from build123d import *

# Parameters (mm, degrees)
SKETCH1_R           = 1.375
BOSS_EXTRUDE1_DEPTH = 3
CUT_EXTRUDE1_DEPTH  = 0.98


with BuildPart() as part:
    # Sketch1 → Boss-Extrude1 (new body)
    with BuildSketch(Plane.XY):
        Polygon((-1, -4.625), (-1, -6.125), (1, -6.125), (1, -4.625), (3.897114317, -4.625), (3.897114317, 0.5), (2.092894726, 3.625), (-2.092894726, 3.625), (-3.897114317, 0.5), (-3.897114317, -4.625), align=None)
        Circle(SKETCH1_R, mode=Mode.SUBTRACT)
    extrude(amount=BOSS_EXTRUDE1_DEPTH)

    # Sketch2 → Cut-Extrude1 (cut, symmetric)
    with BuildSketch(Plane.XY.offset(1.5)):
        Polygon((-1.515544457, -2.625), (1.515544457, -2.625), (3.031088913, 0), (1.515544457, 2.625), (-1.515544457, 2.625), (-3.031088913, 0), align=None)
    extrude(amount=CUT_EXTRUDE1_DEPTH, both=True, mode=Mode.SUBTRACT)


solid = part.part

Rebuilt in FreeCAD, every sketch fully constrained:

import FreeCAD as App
import Part
import Sketcher
Q = App.Units.Quantity

doc = App.newDocument("Part")
body = doc.addObject("PartDesign::Body", "Body")

sketch1 = body.newObject("Sketcher::SketchObject", "Sketch")
sketch1.AttachmentSupport = (doc.getObject("XY_Plane"), [""])
sketch1.MapMode = "FlatFace"
sketch1.addGeometry([
    Part.LineSegment(App.Vector(-1, -4.6, 0), App.Vector(-1, -6.1, 0)),
    Part.LineSegment(App.Vector(-1, -6.1, 0), App.Vector(1, -6.1, 0)),
    Part.LineSegment(App.Vector(1, -6.1, 0), App.Vector(1, -4.6, 0)),
    Part.LineSegment(App.Vector(1, -4.6, 0), App.Vector(3.9, -4.6, 0)),
    Part.LineSegment(App.Vector(3.9, -4.6, 0), App.Vector(3.9, 0.5, 0)),
    Part.LineSegment(App.Vector(3.9, 0.5, 0), App.Vector(2.1, 3.6, 0)),
    Part.LineSegment(App.Vector(2.1, 3.6, 0), App.Vector(-2.1, 3.6, 0)),
    Part.LineSegment(App.Vector(-2.1, 3.6, 0), App.Vector(-3.9, 0.5, 0)),
    Part.LineSegment(App.Vector(-3.9, 0.5, 0), App.Vector(-3.9, -4.6, 0)),
    Part.LineSegment(App.Vector(-3.9, -4.6, 0), App.Vector(-1, -4.6, 0)),
    Part.Circle(App.Vector(0, 0, 0), App.Vector(0, 0, 1), 1.4),
], False)
sketch1.addConstraint([
    Sketcher.Constraint("Coincident", 0, 2, 1, 1),
    Sketcher.Constraint("Coincident", 1, 2, 2, 1),
    Sketcher.Constraint("Coincident", 2, 2, 3, 1),
    Sketcher.Constraint("Coincident", 3, 2, 4, 1),
    Sketcher.Constraint("Coincident", 4, 2, 5, 1),
    Sketcher.Constraint("Coincident", 5, 2, 6, 1),
    Sketcher.Constraint("Coincident", 6, 2, 7, 1),
    Sketcher.Constraint("Coincident", 7, 2, 8, 1),
    Sketcher.Constraint("Coincident", 8, 2, 9, 1),
    Sketcher.Constraint("Coincident", 9, 2, 0, 1),
    Sketcher.Constraint("Vertical", 0),
    Sketcher.Constraint("Horizontal", 1),
    Sketcher.Constraint("Vertical", 2),
    Sketcher.Constraint("Horizontal", 3),
    Sketcher.Constraint("Vertical", 4),
    Sketcher.Constraint("Horizontal", 6),
    Sketcher.Constraint("Vertical", 8),
    Sketcher.Constraint("Horizontal", 9),
    Sketcher.Constraint("Coincident", 10, 3, -1, 1),
    Sketcher.Constraint("Symmetric", 4, 2, 7, 2, -2),
    Sketcher.Constraint("Symmetric", 2, 2, 9, 2, -2),
    Sketcher.Constraint("Equal", 5, 7),
    Sketcher.Constraint("Diameter", 10, Q("2.75 mm")),
    Sketcher.Constraint("DistanceX", 1, 1, 1, 2, Q("2 mm")),
    Sketcher.Constraint("Angle", 5, Q("120 deg")),
    Sketcher.Constraint("DistanceY", 0, 2, 0, 1, Q("1.5 mm")),
    Sketcher.Constraint("DistanceY", -1, 1, 4, 2, Q("0.5 mm")),
    Sketcher.Constraint("DistanceY", 4, 1, 4, 2, Q("5.125 mm")),
    Sketcher.Constraint("DistanceY", 2, 2, 5, 2, Q("8.25 mm")),
    Sketcher.Constraint("DistanceX", 6, 2, 6, 1, Q("4.185789 mm")),
])
pad1 = body.newObject("PartDesign::Pad", "Pad")
pad1.Profile = sketch1
pad1.Length = 3

sketch2 = body.newObject("Sketcher::SketchObject", "Sketch001")
sketch2.AttachmentSupport = (doc.getObject("XY_Plane"), [""])
sketch2.MapMode = "FlatFace"
sketch2.AttachmentOffset = App.Placement(App.Vector(0, 0, 1.5), App.Rotation())
sketch2.addGeometry([
    Part.LineSegment(App.Vector(-1.5, -2.6, 0), App.Vector(1.5, -2.6, 0)),
    Part.LineSegment(App.Vector(1.5, -2.6, 0), App.Vector(3, 0, 0)),
    Part.LineSegment(App.Vector(3, 0, 0), App.Vector(1.5, 2.6, 0)),
    Part.LineSegment(App.Vector(1.5, 2.6, 0), App.Vector(-1.5, 2.6, 0)),
    Part.LineSegment(App.Vector(-1.5, 2.6, 0), App.Vector(-3, 0, 0)),
    Part.LineSegment(App.Vector(-3, 0, 0), App.Vector(-1.5, -2.6, 0)),
], False)
sketch2.addConstraint([
    Sketcher.Constraint("Coincident", 0, 2, 1, 1),
    Sketcher.Constraint("Coincident", 1, 2, 2, 1),
    Sketcher.Constraint("Coincident", 2, 2, 3, 1),
    Sketcher.Constraint("Coincident", 3, 2, 4, 1),
    Sketcher.Constraint("Coincident", 4, 2, 5, 1),
    Sketcher.Constraint("Coincident", 5, 2, 0, 1),
    Sketcher.Constraint("Horizontal", 0),
    Sketcher.Constraint("Horizontal", 3),
    Sketcher.Constraint("Symmetric", 0, 2, 3, 2, -1, 1),
    Sketcher.Constraint("Symmetric", 1, 2, 4, 2, -1, 1),
    Sketcher.Constraint("PointOnObject", 1, 2, -1),
    Sketcher.Constraint("Parallel", 2, 5),
    Sketcher.Constraint("Vertical", 0, 2, 2, 2),
    Sketcher.Constraint("Angle", 1, Q("60 deg")),
    Sketcher.Constraint("DistanceY", 0, 2, 2, 2, Q("5.25 mm")),
    Sketcher.Constraint("DistanceX", 0, 1, 0, 2, Q("3.031089 mm")),
])
pocket1 = body.newObject("PartDesign::Pocket", "Pocket")
pocket1.Profile = sketch2
pocket1.Length = 1.96
pocket1.Midplane = True

doc.recompute()
